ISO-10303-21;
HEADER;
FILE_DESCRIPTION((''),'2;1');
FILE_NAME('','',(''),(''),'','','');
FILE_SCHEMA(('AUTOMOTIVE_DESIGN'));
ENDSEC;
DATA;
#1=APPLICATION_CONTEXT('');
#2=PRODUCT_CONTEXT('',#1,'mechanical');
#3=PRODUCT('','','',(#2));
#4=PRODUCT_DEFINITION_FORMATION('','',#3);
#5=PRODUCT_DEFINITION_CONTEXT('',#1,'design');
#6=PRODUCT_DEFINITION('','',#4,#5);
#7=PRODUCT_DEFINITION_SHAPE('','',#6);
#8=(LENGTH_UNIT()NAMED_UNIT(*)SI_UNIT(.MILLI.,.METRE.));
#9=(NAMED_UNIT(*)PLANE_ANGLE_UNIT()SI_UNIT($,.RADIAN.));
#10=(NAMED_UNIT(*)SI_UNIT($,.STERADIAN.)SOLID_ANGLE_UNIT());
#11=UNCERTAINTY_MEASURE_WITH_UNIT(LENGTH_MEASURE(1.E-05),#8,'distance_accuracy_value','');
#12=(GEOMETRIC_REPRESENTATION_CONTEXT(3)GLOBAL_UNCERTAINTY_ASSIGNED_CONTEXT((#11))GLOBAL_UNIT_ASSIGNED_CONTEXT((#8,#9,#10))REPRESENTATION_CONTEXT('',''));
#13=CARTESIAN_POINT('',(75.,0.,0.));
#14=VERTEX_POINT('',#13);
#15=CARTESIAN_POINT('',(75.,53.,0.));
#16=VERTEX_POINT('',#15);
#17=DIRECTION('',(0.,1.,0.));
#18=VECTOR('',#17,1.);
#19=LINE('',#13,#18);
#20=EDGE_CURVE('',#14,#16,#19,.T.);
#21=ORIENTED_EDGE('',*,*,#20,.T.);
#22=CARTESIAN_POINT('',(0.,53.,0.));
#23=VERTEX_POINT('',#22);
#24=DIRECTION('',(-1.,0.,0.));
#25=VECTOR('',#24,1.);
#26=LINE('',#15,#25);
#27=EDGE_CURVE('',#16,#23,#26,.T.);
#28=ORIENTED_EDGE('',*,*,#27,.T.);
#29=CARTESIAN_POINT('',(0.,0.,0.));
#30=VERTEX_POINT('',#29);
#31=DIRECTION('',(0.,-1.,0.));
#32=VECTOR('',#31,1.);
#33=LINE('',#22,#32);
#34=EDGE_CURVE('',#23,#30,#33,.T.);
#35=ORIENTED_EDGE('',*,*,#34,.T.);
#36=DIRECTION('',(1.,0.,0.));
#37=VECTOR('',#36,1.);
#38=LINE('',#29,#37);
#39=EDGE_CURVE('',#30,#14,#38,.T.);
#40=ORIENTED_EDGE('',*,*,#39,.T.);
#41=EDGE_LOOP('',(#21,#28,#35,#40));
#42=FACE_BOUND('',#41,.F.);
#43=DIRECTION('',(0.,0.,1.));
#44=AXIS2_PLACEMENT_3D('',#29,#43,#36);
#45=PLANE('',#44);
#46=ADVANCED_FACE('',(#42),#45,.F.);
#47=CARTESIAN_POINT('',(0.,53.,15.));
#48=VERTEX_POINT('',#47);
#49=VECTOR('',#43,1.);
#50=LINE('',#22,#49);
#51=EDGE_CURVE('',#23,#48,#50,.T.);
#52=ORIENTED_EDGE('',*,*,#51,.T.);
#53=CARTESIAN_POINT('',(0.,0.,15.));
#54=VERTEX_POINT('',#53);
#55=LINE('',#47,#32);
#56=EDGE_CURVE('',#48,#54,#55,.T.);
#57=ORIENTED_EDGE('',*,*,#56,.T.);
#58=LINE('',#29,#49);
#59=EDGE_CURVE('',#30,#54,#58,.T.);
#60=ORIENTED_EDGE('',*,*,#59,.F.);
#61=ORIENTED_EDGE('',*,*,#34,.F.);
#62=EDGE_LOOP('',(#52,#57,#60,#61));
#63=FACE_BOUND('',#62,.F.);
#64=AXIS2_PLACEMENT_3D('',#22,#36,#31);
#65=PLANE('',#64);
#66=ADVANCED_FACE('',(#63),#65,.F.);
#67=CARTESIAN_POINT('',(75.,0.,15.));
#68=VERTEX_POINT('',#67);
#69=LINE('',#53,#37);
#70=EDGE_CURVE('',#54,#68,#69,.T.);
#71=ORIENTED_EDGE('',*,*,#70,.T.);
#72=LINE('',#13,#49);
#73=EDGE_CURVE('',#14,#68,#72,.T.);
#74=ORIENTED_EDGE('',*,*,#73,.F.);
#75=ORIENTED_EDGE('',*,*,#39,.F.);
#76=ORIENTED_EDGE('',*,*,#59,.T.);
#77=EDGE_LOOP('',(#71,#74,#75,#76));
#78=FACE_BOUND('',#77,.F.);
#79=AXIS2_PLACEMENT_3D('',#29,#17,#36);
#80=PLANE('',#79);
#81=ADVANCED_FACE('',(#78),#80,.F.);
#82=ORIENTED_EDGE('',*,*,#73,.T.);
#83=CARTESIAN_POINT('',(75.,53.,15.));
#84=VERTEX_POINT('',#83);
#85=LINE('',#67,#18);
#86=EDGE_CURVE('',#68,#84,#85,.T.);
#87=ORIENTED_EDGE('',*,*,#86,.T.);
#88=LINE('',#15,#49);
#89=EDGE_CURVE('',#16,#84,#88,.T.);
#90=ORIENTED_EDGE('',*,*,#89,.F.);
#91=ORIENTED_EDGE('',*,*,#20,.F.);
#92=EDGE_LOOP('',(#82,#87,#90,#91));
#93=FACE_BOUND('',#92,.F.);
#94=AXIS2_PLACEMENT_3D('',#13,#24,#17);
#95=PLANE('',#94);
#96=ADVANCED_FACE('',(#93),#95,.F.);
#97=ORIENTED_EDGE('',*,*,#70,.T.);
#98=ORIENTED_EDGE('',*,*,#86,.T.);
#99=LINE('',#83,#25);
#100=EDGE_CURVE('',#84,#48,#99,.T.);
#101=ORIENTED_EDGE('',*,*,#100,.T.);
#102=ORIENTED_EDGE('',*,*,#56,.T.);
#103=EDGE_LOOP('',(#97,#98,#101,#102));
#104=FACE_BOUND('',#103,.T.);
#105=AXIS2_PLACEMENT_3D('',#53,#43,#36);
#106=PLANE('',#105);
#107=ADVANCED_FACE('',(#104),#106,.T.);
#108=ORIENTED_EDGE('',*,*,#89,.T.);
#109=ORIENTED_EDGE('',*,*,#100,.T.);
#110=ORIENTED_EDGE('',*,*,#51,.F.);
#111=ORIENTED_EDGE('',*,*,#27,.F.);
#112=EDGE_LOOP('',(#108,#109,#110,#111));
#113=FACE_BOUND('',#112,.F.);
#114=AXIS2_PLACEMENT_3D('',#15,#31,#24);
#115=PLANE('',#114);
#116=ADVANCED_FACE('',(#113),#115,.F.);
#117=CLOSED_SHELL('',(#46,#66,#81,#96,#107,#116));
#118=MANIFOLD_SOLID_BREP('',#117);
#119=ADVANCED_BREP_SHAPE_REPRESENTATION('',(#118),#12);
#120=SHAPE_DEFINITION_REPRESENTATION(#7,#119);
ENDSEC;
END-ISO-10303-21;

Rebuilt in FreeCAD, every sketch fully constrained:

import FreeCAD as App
import Part
import Sketcher
Q = App.Units.Quantity

doc = App.newDocument("Part")
body = doc.addObject("PartDesign::Body", "Body")

sketch1 = body.newObject("Sketcher::SketchObject", "Sketch")
sketch1.AttachmentSupport = (doc.getObject("XY_Plane"), [""])
sketch1.MapMode = "FlatFace"
sketch1.addGeometry([
    Part.LineSegment(App.Vector(0, 53, 0), App.Vector(0, 0, 0)),
    Part.LineSegment(App.Vector(0, 0, 0), App.Vector(75, 0, 0)),
    Part.LineSegment(App.Vector(75, 0, 0), App.Vector(75, 53, 0)),
    Part.LineSegment(App.Vector(75, 53, 0), App.Vector(0, 53, 0)),
], False)
sketch1.addConstraint([
    Sketcher.Constraint("Coincident", 0, 2, 1, 1),
    Sketcher.Constraint("Coincident", 1, 2, 2, 1),
    Sketcher.Constraint("Coincident", 2, 2, 3, 1),
    Sketcher.Constraint("Coincident", 3, 2, 0, 1),
    Sketcher.Constraint("Vertical", 0),
    Sketcher.Constraint("Horizontal", 1),
    Sketcher.Constraint("Vertical", 2),
    Sketcher.Constraint("Horizontal", 3),
    Sketcher.Constraint("Coincident", 0, 2, -1, 1),
    Sketcher.Constraint("DistanceX", 1, 1, 1, 2, Q("75 mm")),
    Sketcher.Constraint("DistanceY", 0, 2, 0, 1, Q("53 mm")),
])
pad1 = body.newObject("PartDesign::Pad", "Pad")
pad1.Profile = sketch1
pad1.Length = 15

doc.recompute()
